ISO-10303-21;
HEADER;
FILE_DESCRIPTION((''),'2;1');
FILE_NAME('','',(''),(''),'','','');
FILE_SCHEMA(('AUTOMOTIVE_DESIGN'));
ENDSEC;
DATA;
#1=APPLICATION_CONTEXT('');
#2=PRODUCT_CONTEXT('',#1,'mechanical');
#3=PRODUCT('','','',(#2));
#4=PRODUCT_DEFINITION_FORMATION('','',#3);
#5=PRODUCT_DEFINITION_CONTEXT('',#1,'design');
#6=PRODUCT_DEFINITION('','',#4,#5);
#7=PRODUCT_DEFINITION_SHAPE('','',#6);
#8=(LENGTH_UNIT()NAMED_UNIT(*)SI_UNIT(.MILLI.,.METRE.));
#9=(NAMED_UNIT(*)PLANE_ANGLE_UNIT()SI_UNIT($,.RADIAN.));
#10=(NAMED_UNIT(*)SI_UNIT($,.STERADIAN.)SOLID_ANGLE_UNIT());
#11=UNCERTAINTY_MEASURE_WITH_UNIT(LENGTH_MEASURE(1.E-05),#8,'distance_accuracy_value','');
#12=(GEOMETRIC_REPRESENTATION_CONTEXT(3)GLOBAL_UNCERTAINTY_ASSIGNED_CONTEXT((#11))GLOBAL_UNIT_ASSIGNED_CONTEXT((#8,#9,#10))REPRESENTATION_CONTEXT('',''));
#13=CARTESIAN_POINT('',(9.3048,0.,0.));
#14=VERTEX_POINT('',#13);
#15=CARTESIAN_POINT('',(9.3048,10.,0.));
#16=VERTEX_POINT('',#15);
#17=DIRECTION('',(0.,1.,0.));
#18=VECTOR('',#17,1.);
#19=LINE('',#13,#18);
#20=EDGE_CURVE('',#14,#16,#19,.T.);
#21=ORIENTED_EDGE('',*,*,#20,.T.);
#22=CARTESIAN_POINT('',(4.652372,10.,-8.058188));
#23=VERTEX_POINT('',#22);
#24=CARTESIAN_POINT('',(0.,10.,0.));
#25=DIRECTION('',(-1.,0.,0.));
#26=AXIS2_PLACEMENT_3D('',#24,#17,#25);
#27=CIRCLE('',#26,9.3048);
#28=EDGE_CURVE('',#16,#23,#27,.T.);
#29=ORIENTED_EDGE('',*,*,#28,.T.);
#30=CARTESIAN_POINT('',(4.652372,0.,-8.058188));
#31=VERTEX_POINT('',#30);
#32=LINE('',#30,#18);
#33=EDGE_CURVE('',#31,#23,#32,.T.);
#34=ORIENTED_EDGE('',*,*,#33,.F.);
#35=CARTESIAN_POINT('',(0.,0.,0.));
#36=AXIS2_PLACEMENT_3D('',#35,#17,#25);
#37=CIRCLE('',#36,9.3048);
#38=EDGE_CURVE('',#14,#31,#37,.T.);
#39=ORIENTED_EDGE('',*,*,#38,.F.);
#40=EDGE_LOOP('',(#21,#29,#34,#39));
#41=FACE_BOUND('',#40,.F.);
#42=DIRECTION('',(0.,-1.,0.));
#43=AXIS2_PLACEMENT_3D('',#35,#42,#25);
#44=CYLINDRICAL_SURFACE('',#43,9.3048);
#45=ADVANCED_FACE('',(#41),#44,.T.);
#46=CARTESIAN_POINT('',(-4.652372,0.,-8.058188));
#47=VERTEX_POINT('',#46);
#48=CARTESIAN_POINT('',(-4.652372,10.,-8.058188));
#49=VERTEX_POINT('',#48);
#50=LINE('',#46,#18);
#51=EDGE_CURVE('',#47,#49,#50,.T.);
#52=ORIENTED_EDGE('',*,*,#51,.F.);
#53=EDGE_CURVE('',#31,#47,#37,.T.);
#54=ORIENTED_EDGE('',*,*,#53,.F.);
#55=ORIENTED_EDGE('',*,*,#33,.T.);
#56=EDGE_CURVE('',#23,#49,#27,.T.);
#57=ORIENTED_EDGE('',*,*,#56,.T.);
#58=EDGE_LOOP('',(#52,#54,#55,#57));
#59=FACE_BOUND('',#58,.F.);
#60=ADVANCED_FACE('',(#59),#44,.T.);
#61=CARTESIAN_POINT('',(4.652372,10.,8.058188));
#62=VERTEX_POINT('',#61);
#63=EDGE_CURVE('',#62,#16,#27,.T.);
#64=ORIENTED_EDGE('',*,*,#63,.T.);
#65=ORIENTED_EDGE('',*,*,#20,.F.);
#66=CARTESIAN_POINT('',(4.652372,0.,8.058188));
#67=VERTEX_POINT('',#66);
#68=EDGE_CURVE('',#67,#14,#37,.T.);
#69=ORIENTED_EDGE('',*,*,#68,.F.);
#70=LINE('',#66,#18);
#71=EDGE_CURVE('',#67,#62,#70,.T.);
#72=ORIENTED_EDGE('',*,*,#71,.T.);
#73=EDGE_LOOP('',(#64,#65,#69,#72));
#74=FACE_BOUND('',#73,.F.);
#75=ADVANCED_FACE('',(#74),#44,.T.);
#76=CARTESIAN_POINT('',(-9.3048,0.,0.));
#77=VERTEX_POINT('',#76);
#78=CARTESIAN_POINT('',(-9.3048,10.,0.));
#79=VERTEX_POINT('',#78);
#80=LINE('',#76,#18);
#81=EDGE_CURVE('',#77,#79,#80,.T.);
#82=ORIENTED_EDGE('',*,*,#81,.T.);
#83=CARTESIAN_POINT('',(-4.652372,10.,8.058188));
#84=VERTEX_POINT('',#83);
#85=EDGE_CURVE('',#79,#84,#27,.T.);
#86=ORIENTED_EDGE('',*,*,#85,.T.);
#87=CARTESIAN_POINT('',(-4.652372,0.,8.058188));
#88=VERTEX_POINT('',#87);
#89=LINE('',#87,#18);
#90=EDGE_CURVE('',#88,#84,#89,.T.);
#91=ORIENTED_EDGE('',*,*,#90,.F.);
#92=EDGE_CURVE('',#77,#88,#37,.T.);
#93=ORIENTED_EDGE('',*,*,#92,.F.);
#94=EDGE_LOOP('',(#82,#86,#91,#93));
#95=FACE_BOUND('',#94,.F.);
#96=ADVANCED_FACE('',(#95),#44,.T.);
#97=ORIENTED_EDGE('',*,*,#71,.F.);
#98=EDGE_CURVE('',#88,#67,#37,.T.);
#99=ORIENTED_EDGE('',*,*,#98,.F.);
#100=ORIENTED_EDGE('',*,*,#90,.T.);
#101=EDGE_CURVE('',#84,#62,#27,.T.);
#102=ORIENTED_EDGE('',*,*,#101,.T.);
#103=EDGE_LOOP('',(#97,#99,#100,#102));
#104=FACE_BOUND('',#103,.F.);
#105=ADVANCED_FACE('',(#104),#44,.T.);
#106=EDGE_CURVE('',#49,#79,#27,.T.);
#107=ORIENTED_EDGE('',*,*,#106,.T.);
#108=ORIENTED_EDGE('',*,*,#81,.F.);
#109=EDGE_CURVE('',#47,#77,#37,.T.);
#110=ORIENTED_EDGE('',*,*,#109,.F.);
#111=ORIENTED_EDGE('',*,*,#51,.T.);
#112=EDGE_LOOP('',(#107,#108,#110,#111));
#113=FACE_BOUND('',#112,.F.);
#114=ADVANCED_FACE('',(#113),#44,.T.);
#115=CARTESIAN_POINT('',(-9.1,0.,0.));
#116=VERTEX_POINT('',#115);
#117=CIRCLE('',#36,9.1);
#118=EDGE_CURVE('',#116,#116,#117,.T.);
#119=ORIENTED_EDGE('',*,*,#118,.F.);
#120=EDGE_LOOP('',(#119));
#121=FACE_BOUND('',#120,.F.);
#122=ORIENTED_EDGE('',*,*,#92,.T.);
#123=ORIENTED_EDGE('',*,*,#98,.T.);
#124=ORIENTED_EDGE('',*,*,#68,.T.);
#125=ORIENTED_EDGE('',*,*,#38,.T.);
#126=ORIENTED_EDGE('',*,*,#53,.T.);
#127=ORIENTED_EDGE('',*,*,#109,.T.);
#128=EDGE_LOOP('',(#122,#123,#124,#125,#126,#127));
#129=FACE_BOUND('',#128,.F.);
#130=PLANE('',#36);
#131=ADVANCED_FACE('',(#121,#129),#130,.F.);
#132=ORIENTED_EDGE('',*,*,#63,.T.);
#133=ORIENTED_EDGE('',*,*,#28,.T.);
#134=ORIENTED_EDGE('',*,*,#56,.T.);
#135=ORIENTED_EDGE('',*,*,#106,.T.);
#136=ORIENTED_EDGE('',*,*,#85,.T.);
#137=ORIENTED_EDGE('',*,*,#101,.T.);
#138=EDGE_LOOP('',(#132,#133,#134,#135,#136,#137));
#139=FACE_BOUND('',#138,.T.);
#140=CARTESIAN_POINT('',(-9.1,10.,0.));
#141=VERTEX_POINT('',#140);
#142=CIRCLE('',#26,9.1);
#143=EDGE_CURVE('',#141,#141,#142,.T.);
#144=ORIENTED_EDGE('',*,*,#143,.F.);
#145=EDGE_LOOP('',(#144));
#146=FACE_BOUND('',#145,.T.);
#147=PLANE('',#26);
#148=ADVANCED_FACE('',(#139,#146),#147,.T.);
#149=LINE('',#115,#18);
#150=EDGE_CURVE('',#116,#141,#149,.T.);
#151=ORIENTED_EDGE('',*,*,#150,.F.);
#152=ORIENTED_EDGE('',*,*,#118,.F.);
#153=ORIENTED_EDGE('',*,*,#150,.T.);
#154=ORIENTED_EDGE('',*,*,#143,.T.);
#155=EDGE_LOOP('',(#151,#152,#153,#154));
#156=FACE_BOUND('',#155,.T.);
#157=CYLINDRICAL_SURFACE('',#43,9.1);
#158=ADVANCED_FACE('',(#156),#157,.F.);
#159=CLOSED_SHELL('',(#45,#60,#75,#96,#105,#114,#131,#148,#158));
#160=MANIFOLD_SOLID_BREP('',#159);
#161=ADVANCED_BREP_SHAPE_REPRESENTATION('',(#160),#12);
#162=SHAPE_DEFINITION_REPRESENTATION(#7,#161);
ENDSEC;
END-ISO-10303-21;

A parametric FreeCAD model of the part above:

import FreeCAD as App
import Part
import Sketcher

doc = App.newDocument("Part")
params = doc.addObject("Spreadsheet::Sheet", "Params")
for row, (alias, value) in enumerate([
    ("sketch1_diameter", "18.2 mm"),
    ("pad1_length", "10 mm"),
], start=1):
    params.set(f"A{row}", alias)
    params.set(f"B{row}", "=" + value)
    params.setAlias(f"B{row}", alias)

body = doc.addObject("PartDesign::Body", "Body")

sketch1 = body.newObject("Sketcher::SketchObject", "Sketch")
sketch1.AttachmentSupport = (doc.getObject("XZ_Plane"), [""])
sketch1.MapMode = "FlatFace"
sketch1.addGeometry([
    Part.Circle(App.Vector(0, 0, 0), App.Vector(0, 0, 1), 9.3048),
    Part.Circle(App.Vector(0, 0, 0), App.Vector(0, 0, 1), 9.1),
], False)
sketch1.addConstraint([
    Sketcher.Constraint("Coincident", 0, 3, -1, 1),
    Sketcher.Constraint("Coincident", 1, 3, -1, 1),
    Sketcher.Constraint("Diameter", 1, 18.2),
    Sketcher.Constraint("Diameter", 0, 18.6096),
])
sketch1.setExpression("Constraints[2]", "Params.sketch1_diameter")
pad1 = body.newObject("PartDesign::Pad", "Pad")
pad1.Profile = sketch1
pad1.setExpression("Length", "Params.pad1_length")
pad1.Reversed = True

doc.recompute()
